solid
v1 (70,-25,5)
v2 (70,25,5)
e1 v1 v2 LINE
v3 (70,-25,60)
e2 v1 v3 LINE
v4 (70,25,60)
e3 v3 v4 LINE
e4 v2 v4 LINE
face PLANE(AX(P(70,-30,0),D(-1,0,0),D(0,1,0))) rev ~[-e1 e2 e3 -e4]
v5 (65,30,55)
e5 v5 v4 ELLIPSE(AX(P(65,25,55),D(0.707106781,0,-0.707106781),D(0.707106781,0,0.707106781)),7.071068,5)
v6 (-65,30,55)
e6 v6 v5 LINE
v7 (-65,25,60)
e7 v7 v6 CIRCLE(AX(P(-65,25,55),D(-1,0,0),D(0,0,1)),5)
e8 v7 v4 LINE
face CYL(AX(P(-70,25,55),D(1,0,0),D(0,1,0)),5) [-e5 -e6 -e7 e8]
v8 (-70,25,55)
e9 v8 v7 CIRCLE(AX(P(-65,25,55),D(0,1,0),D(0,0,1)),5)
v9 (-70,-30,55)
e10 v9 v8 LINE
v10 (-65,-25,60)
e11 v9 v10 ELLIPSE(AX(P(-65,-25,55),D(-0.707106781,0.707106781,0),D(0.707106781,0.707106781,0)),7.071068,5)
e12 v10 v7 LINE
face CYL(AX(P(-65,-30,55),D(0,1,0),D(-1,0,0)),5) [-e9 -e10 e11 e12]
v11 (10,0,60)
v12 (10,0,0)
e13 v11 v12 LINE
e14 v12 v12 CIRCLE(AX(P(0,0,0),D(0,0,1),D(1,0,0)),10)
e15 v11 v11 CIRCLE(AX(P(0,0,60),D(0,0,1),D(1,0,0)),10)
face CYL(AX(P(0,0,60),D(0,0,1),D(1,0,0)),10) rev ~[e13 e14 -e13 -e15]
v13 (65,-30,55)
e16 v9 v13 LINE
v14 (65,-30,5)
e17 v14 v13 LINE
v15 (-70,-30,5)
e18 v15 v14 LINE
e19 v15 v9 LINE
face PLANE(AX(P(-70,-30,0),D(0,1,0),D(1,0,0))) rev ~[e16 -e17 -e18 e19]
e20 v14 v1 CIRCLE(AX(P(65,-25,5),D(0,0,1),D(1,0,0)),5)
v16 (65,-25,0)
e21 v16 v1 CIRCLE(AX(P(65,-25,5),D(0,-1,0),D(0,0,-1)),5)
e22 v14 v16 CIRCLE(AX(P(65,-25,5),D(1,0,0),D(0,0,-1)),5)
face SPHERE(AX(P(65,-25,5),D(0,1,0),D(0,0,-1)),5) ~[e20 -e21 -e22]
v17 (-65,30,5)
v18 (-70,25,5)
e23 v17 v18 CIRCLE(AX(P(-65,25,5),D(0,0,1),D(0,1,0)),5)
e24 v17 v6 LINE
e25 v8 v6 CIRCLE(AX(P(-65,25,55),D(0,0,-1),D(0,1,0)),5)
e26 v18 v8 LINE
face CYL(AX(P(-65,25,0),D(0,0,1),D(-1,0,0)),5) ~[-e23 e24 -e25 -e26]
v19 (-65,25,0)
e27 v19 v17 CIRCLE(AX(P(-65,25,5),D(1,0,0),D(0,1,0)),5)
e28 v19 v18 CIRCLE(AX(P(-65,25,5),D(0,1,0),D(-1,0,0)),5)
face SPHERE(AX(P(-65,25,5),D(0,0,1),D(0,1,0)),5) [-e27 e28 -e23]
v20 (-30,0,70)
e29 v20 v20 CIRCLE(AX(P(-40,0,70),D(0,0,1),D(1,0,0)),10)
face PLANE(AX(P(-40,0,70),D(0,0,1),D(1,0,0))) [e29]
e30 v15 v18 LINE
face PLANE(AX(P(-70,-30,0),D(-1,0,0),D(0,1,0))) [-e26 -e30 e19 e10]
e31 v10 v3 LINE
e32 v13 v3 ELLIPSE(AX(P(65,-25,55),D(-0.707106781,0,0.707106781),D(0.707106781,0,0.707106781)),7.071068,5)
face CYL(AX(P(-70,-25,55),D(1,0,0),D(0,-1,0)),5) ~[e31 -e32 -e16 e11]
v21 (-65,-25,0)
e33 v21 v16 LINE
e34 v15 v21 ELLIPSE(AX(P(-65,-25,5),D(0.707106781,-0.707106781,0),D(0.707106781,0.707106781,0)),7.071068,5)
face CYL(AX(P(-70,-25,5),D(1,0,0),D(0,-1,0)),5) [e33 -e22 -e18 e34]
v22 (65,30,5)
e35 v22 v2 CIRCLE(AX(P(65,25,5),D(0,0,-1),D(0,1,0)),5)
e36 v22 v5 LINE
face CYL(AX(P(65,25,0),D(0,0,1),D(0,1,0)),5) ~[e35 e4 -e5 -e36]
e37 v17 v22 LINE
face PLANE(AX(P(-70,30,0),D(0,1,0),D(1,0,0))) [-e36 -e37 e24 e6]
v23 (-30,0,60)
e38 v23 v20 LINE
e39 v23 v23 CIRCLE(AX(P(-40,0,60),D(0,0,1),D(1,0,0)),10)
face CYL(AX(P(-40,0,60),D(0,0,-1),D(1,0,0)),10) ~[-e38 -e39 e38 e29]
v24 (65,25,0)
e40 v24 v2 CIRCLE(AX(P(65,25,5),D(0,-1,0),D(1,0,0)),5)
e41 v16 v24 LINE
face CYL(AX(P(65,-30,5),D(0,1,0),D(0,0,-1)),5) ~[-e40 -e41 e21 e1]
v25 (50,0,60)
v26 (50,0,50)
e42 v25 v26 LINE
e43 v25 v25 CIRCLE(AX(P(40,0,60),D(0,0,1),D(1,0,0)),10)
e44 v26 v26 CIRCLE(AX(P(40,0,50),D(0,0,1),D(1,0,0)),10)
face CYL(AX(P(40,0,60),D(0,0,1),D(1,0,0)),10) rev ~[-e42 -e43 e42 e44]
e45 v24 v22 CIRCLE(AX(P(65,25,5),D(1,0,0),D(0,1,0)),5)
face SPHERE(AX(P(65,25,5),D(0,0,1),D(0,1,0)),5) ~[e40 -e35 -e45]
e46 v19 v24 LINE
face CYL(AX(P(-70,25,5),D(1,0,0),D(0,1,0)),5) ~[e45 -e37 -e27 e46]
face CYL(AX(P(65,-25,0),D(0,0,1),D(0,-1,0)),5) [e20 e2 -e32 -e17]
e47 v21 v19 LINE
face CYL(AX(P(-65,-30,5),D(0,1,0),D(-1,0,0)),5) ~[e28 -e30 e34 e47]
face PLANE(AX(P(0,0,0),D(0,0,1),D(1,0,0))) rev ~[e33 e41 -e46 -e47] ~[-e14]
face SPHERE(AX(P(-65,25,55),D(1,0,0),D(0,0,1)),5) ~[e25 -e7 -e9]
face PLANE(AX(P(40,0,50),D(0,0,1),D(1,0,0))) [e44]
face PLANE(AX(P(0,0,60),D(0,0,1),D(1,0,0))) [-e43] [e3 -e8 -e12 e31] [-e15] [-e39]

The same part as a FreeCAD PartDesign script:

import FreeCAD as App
import Part
import Sketcher


def edges_at(feature, points):
    """Names of the edges that pass closest to the given points."""
    edges = feature.Shape.Edges
    near = lambda p: min(range(len(edges)), key=lambda i: edges[i].distToShape(Part.Vertex(*p))[0])
    return sorted({f"Edge{near(p) + 1}" for p in points})

doc = App.newDocument("Part")
body = doc.addObject("PartDesign::Body", "Body")

sketch1 = doc.addObject("Sketcher::SketchObject", "Sketch")
body.addObject(sketch1)
sketch1.AttachmentSupport = (doc.XY_Plane, [""])
sketch1.MapMode = "FlatFace"
sketch1.addGeometry([
    Part.LineSegment(App.Vector(-70, 30, 0), App.Vector(-70, -30, 0)),
    Part.LineSegment(App.Vector(-70, -30, 0), App.Vector(70, -30, 0)),
    Part.LineSegment(App.Vector(70, -30, 0), App.Vector(70, 30, 0)),
    Part.LineSegment(App.Vector(70, 30, 0), App.Vector(-70, 30, 0)),
], False)
sketch1.addConstraint([
    Sketcher.Constraint("Coincident", 0, 2, 1, 1),
    Sketcher.Constraint("Coincident", 1, 2, 2, 1),
    Sketcher.Constraint("Coincident", 2, 2, 3, 1),
    Sketcher.Constraint("Coincident", 3, 2, 0, 1),
    Sketcher.Constraint("Vertical", 0),
    Sketcher.Constraint("Horizontal", 1),
    Sketcher.Constraint("Vertical", 2),
    Sketcher.Constraint("Horizontal", 3),
    Sketcher.Constraint("Symmetric", 0, 2, 2, 2, -1, 1),
    Sketcher.Constraint("DistanceX", 1, 1, 1, 2, 140.0),
    Sketcher.Constraint("DistanceY", 0, 2, 0, 1, 60.0),
])
pad1 = doc.addObject("PartDesign::Pad", "Pad")
body.addObject(pad1)
pad1.Profile = sketch1
pad1.Length = 60

sketch2 = doc.addObject("Sketcher::SketchObject", "Sketch001")
body.addObject(sketch2)
sketch2.AttachmentSupport = (doc.XY_Plane, [""])
sketch2.MapMode = "FlatFace"
sketch2.AttachmentOffset = App.Placement(App.Vector(0, 0, 60), App.Rotation())
sketch2.addGeometry(Part.Circle(App.Vector(-40, 0, 0), App.Vector(0, 0, 1), 10), False)
sketch2.addConstraint([
    Sketcher.Constraint("PointOnObject", 0, 3, -1),
    Sketcher.Constraint("Diameter", 0, 20.0),
    Sketcher.Constraint("DistanceX", 0, 3, -1, 1, 40.0),
])
pad2 = doc.addObject("PartDesign::Pad", "Pad001")
body.addObject(pad2)
pad2.Profile = sketch2
pad2.Length = 10

sketch3 = doc.addObject("Sketcher::SketchObject", "Sketch002")
body.addObject(sketch3)
sketch3.AttachmentSupport = (doc.XY_Plane, [""])
sketch3.MapMode = "FlatFace"
sketch3.AttachmentOffset = App.Placement(App.Vector(0, 0, 60), App.Rotation())
sketch3.addGeometry(Part.Circle(App.Vector(0, 0, 0), App.Vector(0, 0, 1), 10), False)
sketch3.addConstraint([
    Sketcher.Constraint("Coincident", 0, 3, -1, 1),
    Sketcher.Constraint("Diameter", 0, 20.0),
])
pocket1 = doc.addObject("PartDesign::Pocket", "Pocket")
body.addObject(pocket1)
pocket1.Profile = sketch3
pocket1.Length = 103.2

sketch4 = doc.addObject("Sketcher::SketchObject", "Sketch003")
body.addObject(sketch4)
sketch4.AttachmentSupport = (doc.XY_Plane, [""])
sketch4.MapMode = "FlatFace"
sketch4.AttachmentOffset = App.Placement(App.Vector(0, 0, 60), App.Rotation())
sketch4.addGeometry(Part.Circle(App.Vector(40, 0, 0), App.Vector(0, 0, 1), 10), False)
sketch4.addConstraint([
    Sketcher.Constraint("PointOnObject", 0, 3, -1),
    Sketcher.Constraint("Diameter", 0, 20.0),
    Sketcher.Constraint("DistanceX", -1, 1, 0, 3, 40.0),
])
pocket2 = doc.addObject("PartDesign::Pocket", "Pocket001")
body.addObject(pocket2)
pocket2.Profile = sketch4
pocket2.Length = 10
doc.recompute()

fillet = doc.addObject("PartDesign::Fillet", "Fillet")
body.addObject(fillet)
fillet.Base = (pocket2, edges_at(pocket2, [
    (0, 30, 60),
    (-70, 0, 60),
    (0, -30, 60),
    (70, 30, 30),
    (-70, 30, 30),
    (0, 30, 0),
    (70, 0, 0),
    (0, -30, 0),
    (-70, 0, 0),
    (70, -30, 30),
]))
fillet.Radius = 5

doc.recompute()
